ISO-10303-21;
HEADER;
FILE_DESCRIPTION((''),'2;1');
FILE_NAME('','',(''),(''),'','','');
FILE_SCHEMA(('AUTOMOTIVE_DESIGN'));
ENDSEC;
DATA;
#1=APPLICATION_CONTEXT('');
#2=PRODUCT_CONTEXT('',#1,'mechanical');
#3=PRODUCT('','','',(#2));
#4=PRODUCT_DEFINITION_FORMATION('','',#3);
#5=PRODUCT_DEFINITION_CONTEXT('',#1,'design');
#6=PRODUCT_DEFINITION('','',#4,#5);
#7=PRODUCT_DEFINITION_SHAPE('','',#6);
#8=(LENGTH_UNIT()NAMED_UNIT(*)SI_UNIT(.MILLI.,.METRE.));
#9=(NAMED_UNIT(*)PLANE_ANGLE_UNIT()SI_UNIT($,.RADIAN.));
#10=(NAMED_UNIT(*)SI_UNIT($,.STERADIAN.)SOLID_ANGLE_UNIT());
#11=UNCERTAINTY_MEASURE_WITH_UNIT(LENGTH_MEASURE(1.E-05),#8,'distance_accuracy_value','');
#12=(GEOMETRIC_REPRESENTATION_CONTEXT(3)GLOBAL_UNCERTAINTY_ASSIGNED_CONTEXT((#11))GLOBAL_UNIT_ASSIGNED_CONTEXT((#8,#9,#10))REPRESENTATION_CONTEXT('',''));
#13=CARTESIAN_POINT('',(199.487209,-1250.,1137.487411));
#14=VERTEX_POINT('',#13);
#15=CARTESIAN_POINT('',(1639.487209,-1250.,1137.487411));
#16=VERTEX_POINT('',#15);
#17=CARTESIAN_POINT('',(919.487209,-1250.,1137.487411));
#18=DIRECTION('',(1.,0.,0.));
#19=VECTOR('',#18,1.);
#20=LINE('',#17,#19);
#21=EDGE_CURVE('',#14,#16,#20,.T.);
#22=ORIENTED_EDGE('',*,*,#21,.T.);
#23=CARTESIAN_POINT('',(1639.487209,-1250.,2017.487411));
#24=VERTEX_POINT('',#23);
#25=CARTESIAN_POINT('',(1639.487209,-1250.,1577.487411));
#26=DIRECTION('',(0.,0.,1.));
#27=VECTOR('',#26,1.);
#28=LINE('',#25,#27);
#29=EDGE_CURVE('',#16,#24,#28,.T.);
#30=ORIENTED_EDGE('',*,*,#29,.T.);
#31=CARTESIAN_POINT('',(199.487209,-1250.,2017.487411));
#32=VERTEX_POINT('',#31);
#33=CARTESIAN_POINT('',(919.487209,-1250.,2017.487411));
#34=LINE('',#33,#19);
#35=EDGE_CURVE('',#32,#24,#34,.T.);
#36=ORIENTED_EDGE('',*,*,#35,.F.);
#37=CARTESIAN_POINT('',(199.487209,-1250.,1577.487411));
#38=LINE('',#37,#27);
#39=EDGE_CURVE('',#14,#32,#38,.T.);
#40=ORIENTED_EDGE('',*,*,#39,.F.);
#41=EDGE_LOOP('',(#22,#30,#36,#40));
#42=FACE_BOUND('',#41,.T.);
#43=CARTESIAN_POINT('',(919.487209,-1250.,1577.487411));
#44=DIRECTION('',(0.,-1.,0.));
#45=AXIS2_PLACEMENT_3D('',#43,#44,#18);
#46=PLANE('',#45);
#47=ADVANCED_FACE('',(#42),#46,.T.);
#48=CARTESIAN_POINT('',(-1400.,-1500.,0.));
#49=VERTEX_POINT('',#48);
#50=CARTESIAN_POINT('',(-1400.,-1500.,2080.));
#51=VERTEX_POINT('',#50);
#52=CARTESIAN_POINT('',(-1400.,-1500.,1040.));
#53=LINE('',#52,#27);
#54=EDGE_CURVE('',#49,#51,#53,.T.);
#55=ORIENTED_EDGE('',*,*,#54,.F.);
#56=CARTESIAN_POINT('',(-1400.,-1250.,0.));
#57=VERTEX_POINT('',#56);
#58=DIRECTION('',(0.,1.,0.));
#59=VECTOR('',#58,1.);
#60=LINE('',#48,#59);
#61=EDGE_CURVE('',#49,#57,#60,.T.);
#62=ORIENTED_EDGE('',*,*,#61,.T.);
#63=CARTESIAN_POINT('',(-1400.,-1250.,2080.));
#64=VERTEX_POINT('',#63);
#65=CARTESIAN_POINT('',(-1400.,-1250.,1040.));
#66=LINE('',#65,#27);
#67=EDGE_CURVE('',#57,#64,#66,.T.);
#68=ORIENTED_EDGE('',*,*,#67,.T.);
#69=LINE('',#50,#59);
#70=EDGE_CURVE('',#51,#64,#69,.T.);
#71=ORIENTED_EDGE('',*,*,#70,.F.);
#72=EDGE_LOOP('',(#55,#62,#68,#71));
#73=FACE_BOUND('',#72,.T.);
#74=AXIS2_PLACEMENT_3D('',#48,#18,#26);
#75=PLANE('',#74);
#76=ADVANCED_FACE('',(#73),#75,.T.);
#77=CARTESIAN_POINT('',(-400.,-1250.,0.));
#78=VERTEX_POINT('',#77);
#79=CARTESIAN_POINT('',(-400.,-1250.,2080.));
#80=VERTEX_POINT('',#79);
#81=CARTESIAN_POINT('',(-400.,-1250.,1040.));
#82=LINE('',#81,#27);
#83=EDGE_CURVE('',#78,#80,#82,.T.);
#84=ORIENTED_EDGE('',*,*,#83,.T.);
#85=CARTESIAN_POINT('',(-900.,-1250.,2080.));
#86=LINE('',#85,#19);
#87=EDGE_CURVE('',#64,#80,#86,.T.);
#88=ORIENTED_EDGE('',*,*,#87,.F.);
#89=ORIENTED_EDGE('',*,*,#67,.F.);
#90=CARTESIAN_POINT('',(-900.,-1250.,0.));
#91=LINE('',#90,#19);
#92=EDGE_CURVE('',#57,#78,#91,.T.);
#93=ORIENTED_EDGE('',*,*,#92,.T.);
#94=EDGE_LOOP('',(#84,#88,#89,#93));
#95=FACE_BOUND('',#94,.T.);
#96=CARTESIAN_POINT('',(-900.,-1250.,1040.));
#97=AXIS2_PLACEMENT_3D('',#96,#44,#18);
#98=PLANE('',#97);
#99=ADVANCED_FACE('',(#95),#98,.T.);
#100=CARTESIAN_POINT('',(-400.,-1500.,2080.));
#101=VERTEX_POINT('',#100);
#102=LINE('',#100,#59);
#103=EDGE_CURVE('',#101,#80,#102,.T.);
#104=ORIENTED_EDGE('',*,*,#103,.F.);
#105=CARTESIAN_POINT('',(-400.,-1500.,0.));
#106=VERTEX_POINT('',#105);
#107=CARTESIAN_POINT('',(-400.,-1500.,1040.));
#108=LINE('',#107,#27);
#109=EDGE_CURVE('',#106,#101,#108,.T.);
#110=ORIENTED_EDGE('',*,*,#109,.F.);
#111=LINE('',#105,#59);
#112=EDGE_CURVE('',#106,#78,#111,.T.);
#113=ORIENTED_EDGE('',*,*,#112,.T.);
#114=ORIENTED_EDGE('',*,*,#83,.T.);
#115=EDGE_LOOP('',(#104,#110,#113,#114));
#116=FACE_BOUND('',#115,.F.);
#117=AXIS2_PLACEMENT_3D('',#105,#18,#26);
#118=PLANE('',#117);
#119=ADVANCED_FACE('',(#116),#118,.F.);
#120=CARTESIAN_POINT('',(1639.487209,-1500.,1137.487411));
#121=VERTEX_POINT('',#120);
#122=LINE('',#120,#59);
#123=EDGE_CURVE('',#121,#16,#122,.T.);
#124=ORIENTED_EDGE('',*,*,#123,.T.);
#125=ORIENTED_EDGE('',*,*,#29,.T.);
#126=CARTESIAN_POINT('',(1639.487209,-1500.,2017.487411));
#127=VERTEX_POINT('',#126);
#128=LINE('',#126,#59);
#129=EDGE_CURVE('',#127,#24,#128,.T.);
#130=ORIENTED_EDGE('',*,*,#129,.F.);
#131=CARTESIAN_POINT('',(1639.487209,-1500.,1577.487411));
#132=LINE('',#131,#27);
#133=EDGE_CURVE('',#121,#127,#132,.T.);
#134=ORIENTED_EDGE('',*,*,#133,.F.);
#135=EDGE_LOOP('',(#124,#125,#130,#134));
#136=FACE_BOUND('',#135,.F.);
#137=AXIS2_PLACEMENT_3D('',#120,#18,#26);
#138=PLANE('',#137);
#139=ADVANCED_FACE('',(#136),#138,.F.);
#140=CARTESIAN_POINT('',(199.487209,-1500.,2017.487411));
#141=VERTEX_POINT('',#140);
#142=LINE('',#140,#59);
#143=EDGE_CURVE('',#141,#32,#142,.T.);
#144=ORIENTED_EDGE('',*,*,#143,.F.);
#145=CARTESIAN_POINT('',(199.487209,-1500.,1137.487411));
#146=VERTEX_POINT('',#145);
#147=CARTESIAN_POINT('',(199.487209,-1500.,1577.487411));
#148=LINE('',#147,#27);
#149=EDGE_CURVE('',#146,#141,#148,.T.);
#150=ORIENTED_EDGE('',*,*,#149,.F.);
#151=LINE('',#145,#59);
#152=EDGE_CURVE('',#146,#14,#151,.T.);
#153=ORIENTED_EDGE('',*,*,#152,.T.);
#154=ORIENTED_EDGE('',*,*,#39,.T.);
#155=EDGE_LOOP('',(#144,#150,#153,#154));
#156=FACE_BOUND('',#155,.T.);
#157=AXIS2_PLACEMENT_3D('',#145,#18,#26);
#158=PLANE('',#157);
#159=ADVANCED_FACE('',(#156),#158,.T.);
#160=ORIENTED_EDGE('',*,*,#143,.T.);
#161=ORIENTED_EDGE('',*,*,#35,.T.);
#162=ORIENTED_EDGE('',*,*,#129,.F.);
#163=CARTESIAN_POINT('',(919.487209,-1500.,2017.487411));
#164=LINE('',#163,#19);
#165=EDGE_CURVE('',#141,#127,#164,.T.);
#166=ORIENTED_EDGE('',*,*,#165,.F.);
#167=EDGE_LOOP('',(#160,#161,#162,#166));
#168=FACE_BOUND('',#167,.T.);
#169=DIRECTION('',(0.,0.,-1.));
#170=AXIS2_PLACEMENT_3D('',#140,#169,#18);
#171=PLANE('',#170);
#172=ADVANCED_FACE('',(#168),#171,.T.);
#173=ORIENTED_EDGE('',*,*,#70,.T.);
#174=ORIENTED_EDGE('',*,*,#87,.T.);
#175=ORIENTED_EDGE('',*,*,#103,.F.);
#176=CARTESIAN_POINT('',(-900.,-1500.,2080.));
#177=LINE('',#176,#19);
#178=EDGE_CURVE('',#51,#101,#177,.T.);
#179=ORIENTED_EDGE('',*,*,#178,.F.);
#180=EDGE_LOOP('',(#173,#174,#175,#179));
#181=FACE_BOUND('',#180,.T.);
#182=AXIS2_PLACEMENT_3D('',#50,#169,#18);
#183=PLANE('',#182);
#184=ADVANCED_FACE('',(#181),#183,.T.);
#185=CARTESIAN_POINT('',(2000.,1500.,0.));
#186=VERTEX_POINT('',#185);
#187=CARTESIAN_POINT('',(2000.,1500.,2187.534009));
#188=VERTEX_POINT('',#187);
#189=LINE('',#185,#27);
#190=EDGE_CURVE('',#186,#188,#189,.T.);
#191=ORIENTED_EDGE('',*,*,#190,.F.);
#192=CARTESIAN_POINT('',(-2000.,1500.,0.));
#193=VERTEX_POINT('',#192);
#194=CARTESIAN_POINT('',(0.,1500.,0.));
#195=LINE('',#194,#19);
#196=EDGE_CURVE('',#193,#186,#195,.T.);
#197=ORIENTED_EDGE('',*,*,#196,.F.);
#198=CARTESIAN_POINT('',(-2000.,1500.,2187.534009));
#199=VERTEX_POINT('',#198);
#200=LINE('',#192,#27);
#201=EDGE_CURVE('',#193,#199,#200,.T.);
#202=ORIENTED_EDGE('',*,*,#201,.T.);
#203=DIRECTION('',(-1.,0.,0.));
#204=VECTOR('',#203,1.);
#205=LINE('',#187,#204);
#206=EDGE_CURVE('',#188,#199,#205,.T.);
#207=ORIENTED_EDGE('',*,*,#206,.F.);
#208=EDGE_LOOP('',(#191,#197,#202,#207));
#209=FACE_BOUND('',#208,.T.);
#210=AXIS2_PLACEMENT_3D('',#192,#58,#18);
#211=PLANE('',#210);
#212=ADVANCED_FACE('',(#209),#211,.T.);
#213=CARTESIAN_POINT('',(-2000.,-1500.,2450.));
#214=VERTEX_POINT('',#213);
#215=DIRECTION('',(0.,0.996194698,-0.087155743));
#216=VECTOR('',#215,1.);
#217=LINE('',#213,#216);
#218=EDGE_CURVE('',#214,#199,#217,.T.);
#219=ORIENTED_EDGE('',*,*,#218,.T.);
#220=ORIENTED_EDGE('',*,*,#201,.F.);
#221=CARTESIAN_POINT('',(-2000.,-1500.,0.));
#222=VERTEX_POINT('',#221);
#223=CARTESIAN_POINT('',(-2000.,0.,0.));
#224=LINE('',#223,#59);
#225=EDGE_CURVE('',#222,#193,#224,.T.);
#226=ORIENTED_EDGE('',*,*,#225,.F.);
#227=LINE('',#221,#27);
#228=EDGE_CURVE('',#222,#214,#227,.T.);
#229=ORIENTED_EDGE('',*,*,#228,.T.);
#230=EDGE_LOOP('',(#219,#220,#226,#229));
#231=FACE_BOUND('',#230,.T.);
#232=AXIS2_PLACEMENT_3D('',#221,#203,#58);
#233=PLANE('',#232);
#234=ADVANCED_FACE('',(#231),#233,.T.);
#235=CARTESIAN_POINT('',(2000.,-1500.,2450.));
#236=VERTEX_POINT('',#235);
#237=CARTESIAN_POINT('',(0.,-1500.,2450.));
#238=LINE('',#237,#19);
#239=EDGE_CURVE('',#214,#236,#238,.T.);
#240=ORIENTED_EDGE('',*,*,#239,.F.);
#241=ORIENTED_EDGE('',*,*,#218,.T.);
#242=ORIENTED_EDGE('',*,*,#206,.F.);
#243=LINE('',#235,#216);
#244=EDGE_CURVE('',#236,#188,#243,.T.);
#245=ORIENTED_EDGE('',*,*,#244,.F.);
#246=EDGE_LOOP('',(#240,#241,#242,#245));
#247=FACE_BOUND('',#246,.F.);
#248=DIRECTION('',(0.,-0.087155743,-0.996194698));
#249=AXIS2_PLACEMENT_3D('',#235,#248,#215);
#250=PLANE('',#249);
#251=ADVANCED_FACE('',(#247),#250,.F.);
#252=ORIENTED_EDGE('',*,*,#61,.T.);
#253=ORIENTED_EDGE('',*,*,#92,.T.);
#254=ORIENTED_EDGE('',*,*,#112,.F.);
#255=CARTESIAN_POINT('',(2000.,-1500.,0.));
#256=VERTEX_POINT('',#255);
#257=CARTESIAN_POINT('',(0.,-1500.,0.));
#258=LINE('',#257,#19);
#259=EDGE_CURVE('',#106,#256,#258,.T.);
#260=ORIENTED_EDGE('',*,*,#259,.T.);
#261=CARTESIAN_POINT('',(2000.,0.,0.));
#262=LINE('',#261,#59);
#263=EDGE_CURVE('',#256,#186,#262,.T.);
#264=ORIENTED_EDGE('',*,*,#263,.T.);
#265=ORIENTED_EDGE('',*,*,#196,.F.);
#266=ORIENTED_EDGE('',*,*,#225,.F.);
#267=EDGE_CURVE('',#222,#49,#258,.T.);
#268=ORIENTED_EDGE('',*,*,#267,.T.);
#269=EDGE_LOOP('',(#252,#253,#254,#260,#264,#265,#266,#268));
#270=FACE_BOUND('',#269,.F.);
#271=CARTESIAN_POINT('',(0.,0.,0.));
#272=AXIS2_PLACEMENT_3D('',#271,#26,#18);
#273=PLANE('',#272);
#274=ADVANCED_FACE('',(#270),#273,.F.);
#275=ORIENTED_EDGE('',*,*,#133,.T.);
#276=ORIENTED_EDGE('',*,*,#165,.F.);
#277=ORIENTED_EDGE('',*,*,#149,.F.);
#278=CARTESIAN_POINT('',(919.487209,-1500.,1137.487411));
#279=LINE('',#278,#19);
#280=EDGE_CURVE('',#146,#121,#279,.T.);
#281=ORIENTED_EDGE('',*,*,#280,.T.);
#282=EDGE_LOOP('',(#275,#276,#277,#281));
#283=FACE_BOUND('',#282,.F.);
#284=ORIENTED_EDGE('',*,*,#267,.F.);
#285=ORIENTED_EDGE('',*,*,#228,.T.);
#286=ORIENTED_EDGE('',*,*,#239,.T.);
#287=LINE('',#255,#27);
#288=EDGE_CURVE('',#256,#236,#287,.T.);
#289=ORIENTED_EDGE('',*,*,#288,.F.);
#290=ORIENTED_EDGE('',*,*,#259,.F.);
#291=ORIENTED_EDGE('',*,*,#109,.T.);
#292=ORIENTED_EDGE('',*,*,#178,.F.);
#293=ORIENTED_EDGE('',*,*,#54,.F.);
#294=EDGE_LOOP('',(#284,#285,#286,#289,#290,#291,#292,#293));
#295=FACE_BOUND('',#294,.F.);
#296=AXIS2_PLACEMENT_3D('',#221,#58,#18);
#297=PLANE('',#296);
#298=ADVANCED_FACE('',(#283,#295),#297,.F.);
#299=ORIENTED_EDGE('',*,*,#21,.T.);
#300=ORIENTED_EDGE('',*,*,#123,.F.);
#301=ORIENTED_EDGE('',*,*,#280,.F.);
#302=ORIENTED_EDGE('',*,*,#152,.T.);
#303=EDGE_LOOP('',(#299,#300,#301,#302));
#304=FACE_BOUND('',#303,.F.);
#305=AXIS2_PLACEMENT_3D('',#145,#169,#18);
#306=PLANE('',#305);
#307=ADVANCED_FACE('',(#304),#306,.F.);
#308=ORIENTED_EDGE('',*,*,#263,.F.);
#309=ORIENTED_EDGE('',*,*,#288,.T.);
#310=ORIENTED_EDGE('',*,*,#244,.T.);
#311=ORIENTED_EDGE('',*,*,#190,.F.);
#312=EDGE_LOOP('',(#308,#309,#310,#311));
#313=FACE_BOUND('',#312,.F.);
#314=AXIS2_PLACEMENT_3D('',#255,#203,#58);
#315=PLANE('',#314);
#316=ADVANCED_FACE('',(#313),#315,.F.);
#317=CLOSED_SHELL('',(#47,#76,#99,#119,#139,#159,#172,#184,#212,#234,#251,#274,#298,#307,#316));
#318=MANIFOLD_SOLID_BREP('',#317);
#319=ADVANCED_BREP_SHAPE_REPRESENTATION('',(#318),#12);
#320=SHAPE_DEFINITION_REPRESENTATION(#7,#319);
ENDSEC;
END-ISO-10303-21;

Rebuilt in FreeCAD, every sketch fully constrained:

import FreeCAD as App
import Part
import Sketcher
Q = App.Units.Quantity

doc = App.newDocument("Part")
body = doc.addObject("PartDesign::Body", "Body")

# Sketch on XY plane
sketch1 = body.newObject("Sketcher::SketchObject", "Sketch")
sketch1.AttachmentSupport = (doc.getObject("XY_Plane"), [""])
sketch1.MapMode = "FlatFace"
sketch1.addGeometry([
    Part.LineSegment(App.Vector(-2000, 1500, 0), App.Vector(-2000, -1500, 0)),
    Part.LineSegment(App.Vector(-2000, -1500, 0), App.Vector(2000, -1500, 0)),
    Part.LineSegment(App.Vector(2000, -1500, 0), App.Vector(2000, 1500, 0)),
    Part.LineSegment(App.Vector(2000, 1500, 0), App.Vector(-2000, 1500, 0)),
], False)
sketch1.addConstraint([
    Sketcher.Constraint("Coincident", 0, 2, 1, 1),
    Sketcher.Constraint("Coincident", 1, 2, 2, 1),
    Sketcher.Constraint("Coincident", 2, 2, 3, 1),
    Sketcher.Constraint("Coincident", 3, 2, 0, 1),
    Sketcher.Constraint("Vertical", 0),
    Sketcher.Constraint("Horizontal", 1),
    Sketcher.Constraint("Vertical", 2),
    Sketcher.Constraint("Horizontal", 3),
    Sketcher.Constraint("Symmetric", 0, 2, 2, 2, -1, 1),
    Sketcher.Constraint("DistanceX", 1, 1, 1, 2, 4000.0),
    Sketcher.Constraint("DistanceY", 0, 2, 0, 1, 3000.0),
])
pad1 = body.newObject("PartDesign::Pad", "Pad")
pad1.Profile = sketch1
pad1.Length = 2450

# Sketch on YZ plane
sketch2 = body.newObject("Sketcher::SketchObject", "Sketch001")
sketch2.AttachmentSupport = (doc.getObject("YZ_Plane"), [""])
sketch2.MapMode = "FlatFace"
sketch2.AttachmentOffset = App.Placement(App.Vector(0, 0, 2000), App.Rotation())
sketch2.addGeometry([
    Part.LineSegment(App.Vector(1500, 2450, 0), App.Vector(-1500, 2450, 0)),
    Part.LineSegment(App.Vector(-1500, 2450, 0), App.Vector(1500, 2188, 0)),
    Part.LineSegment(App.Vector(1500, 2188, 0), App.Vector(1500, 2450, 0)),
], False)
sketch2.addConstraint([
    Sketcher.Constraint("Coincident", 0, 2, 1, 1),
    Sketcher.Constraint("Coincident", 1, 2, 2, 1),
    Sketcher.Constraint("Coincident", 2, 2, 0, 1),
    Sketcher.Constraint("Horizontal", 0),
    Sketcher.Constraint("Vertical", 2),
    Sketcher.Constraint("DistanceX", 0, 2, 0, 1, 3000.0),
    Sketcher.Constraint("Angle", 1, Q("-5 deg")),
    Sketcher.Constraint("DistanceX", 0, 2, -1, 1, 1500.0),
    Sketcher.Constraint("DistanceY", -1, 1, 0, 2, 2450.0),
])
pocket1 = body.newObject("PartDesign::Pocket", "Pocket")
pocket1.Profile = sketch2
pocket1.Length = 4000

# Sketch on XZ plane
sketch3 = body.newObject("Sketcher::SketchObject", "Sketch002")
sketch3.AttachmentSupport = (doc.getObject("XZ_Plane"), [""])
sketch3.MapMode = "FlatFace"
sketch3.AttachmentOffset = App.Placement(App.Vector(0, 0, 1500), App.Rotation())
sketch3.addGeometry([
    Part.LineSegment(App.Vector(199, 2017, 0), App.Vector(199, 1137, 0)),  # 0
    Part.LineSegment(App.Vector(199, 1137, 0), App.Vector(1639, 1137, 0)),  # 1
    Part.LineSegment(App.Vector(1639, 1137, 0), App.Vector(1639, 2017, 0)),  # 2
    Part.LineSegment(App.Vector(1639, 2017, 0), App.Vector(199, 2017, 0)),  # 3
    Part.LineSegment(App.Vector(-1400, 2080, 0), App.Vector(-1400, 0, 0)),  # 4
    Part.LineSegment(App.Vector(-1400, 0, 0), App.Vector(-400, 0, 0)),  # 5
    Part.LineSegment(App.Vector(-400, 0, 0), App.Vector(-400, 2080, 0)),  # 6
    Part.LineSegment(App.Vector(-400, 2080, 0), App.Vector(-1400, 2080, 0)),  # 7
], False)
sketch3.addConstraint([
    Sketcher.Constraint("Coincident", 0, 2, 1, 1),
    Sketcher.Constraint("Coincident", 1, 2, 2, 1),
    Sketcher.Constraint("Coincident", 2, 2, 3, 1),
    Sketcher.Constraint("Coincident", 3, 2, 0, 1),
    Sketcher.Constraint("Coincident", 4, 2, 5, 1),
    Sketcher.Constraint("Coincident", 5, 2, 6, 1),
    Sketcher.Constraint("Coincident", 6, 2, 7, 1),
    Sketcher.Constraint("Coincident", 7, 2, 4, 1),
    Sketcher.Constraint("Vertical", 0),
    Sketcher.Constraint("Horizontal", 1),
    Sketcher.Constraint("Vertical", 2),
    Sketcher.Constraint("Horizontal", 3),
    Sketcher.Constraint("Vertical", 4),
    Sketcher.Constraint("Horizontal", 5),
    Sketcher.Constraint("Vertical", 6),
    Sketcher.Constraint("Horizontal", 7),
    Sketcher.Constraint("PointOnObject", 4, 2, -1),
    Sketcher.Constraint("DistanceX", 1, 1, 1, 2, 1440.0),
    Sketcher.Constraint("DistanceX", 5, 1, 5, 2, 1000.0),
    Sketcher.Constraint("DistanceY", 0, 2, 0, 1, 880.0),
    Sketcher.Constraint("DistanceY", 4, 2, 4, 1, 2080.0),
    Sketcher.Constraint("DistanceX", 4, 2, -1, 1, 1400.0),
    Sketcher.Constraint("DistanceX", -1, 1, 0, 2, 199.487209),
    Sketcher.Constraint("DistanceY", -1, 1, 0, 2, 1137.487411),
])
pocket2 = body.newObject("PartDesign::Pocket", "Pocket001")
pocket2.Profile = sketch3
pocket2.Length = 250

doc.recompute()
